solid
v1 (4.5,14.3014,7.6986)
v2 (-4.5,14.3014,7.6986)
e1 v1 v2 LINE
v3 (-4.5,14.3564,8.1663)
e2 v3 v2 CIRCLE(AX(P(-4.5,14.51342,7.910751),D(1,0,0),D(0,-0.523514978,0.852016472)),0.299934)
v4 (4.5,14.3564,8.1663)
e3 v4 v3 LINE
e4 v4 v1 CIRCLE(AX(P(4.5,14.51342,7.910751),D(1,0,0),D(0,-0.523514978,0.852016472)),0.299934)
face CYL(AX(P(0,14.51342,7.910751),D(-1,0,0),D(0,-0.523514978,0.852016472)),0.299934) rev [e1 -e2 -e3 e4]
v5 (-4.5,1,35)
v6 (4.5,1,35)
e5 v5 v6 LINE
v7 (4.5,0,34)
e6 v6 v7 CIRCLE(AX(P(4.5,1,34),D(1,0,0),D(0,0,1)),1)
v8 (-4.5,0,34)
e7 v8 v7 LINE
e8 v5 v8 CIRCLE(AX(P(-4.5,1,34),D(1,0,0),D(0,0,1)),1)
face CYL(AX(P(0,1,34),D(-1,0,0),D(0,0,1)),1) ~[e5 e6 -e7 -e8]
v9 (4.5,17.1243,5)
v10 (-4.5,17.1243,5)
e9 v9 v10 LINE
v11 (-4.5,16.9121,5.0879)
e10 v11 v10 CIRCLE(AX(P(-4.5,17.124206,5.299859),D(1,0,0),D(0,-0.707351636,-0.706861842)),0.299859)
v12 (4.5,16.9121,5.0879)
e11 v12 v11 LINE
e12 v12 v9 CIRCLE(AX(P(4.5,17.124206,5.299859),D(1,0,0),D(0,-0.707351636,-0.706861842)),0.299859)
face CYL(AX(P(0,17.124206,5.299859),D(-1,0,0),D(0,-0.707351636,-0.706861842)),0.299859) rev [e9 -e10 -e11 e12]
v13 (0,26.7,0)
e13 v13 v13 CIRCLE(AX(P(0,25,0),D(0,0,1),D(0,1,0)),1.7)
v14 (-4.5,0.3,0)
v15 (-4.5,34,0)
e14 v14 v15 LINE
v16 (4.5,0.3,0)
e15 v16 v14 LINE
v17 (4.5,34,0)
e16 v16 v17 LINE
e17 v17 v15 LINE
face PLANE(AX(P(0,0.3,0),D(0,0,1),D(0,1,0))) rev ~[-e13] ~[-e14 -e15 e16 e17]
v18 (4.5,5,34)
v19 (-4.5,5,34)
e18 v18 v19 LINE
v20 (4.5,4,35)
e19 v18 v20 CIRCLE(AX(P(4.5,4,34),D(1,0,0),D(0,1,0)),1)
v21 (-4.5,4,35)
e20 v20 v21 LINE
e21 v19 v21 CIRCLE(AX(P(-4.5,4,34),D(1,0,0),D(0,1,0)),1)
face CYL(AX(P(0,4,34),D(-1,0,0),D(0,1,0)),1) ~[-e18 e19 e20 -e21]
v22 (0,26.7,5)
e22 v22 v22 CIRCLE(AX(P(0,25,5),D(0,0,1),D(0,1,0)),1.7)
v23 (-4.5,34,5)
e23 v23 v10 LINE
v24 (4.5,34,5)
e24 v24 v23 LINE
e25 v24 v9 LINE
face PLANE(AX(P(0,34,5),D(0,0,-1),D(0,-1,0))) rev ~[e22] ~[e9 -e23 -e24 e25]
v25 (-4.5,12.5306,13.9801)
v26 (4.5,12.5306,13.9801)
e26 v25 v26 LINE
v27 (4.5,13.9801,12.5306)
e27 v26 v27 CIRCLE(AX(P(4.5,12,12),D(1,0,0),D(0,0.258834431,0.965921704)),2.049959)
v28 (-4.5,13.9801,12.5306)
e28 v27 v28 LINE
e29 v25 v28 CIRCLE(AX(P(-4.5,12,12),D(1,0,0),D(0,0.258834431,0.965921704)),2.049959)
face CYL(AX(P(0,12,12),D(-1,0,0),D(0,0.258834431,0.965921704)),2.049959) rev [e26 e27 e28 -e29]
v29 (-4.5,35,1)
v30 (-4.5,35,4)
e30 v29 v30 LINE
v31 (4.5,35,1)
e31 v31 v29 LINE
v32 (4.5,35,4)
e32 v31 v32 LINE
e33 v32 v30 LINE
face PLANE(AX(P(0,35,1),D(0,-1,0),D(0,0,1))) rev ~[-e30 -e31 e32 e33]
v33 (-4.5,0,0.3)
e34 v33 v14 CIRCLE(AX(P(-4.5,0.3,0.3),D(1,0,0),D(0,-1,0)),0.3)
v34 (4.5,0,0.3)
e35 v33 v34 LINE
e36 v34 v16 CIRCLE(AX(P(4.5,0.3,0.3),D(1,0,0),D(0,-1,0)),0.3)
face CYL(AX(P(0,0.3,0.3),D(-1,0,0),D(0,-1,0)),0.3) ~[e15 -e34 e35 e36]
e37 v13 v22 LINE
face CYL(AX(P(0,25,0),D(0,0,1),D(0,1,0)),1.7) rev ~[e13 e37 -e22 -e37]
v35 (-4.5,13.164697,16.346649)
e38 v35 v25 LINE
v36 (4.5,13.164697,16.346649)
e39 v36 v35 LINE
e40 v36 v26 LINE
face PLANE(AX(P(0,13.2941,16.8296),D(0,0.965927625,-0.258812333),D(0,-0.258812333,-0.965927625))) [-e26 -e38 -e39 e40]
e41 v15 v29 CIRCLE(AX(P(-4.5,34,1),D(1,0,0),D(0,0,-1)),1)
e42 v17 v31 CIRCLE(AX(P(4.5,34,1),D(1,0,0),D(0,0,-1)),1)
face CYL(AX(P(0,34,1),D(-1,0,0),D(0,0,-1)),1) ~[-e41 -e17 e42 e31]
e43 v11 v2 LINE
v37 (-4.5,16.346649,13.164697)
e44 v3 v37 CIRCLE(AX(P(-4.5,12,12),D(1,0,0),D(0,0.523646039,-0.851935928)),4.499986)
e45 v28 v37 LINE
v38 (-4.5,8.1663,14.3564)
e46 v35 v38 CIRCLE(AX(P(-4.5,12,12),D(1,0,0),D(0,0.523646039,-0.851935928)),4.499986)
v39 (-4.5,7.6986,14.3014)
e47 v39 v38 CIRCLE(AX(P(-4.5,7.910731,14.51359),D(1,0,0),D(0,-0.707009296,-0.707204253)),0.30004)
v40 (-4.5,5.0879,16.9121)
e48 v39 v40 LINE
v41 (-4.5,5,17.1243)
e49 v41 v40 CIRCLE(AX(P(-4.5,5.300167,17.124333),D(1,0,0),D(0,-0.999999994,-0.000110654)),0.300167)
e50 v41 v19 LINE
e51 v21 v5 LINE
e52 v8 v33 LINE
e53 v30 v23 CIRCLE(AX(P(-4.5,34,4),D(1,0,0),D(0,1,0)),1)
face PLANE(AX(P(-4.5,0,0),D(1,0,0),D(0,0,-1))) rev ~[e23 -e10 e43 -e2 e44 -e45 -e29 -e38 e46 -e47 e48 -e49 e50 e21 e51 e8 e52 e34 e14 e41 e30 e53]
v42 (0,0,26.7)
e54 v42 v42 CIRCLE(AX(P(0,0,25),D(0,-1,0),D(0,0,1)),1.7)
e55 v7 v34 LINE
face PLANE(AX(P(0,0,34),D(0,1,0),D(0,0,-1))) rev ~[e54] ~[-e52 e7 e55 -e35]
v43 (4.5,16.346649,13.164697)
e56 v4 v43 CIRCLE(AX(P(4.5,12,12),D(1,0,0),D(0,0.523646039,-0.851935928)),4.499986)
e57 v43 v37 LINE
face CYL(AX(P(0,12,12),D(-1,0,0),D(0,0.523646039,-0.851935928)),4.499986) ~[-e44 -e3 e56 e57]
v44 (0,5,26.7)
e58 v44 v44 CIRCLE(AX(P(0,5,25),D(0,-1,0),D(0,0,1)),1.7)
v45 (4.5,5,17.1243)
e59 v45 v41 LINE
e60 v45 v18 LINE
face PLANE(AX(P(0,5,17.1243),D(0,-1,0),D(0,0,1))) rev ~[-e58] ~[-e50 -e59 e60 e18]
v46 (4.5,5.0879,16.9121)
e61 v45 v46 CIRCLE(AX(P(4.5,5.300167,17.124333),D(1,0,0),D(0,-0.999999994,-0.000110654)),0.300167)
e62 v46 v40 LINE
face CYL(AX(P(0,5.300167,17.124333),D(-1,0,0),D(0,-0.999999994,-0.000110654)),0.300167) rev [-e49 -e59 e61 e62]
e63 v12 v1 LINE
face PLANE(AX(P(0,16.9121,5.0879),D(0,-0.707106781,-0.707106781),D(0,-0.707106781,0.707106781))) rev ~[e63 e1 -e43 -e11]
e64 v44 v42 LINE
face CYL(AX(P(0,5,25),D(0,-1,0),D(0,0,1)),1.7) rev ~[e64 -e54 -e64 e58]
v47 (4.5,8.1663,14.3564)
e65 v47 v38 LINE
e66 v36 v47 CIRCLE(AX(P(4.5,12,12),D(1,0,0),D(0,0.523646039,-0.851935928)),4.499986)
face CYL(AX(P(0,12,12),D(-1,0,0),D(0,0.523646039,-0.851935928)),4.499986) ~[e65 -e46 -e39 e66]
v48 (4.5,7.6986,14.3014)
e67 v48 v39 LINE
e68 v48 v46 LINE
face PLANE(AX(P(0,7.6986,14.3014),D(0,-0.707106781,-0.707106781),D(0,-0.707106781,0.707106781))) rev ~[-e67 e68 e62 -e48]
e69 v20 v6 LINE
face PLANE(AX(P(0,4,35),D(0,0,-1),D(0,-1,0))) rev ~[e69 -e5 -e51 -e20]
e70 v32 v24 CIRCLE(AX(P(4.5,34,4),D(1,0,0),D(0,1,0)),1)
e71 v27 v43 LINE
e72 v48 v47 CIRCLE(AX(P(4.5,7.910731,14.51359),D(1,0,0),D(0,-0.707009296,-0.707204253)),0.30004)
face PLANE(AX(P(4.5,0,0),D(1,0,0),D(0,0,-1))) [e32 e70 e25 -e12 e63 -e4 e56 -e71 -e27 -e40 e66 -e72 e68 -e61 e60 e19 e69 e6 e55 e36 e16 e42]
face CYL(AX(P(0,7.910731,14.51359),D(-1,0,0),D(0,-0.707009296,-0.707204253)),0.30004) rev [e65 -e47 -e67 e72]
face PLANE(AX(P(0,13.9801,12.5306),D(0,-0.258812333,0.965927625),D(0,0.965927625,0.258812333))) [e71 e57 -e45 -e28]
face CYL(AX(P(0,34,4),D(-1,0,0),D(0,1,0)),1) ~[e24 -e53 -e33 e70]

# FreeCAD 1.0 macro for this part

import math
import FreeCAD as App
import Part
import Sketcher
Q = App.Units.Quantity

doc = App.newDocument("Part")
body = doc.addObject("PartDesign::Body", "Body")

# Sketch on YZ plane
sketch1 = body.newObject("Sketcher::SketchObject", "Sketch")
sketch1.AttachmentSupport = (doc.getObject("YZ_Plane"), [""])
sketch1.MapMode = "FlatFace"
sketch1.addGeometry(Part.LineSegment(App.Vector(4, 35, 0), App.Vector(1, 35, 0)), False)
sketch1.addGeometry(Part.ArcOfCircle(Part.Circle(App.Vector(1, 34, 0), App.Vector(0, 0, 1), 1), math.radians(90), math.radians(180)), False)
sketch1.addGeometry(Part.LineSegment(App.Vector(0, 34, 0), App.Vector(0, 0.3, 0)), False)
sketch1.addGeometry(Part.ArcOfCircle(Part.Circle(App.Vector(0.3, 0.3, 0), App.Vector(0, 0, 1), 0.3), math.radians(180), math.radians(270)), False)
sketch1.addGeometry(Part.LineSegment(App.Vector(0.3, 0, 0), App.Vector(34, 0, 0)), False)
sketch1.addGeometry(Part.ArcOfCircle(Part.Circle(App.Vector(34, 1, 0), App.Vector(0, 0, 1), 1), math.radians(-90), math.radians(0)), False)
sketch1.addGeometry(Part.LineSegment(App.Vector(35, 1, 0), App.Vector(35, 4, 0)), False)
sketch1.addGeometry(Part.ArcOfCircle(Part.Circle(App.Vector(34, 4, 0), App.Vector(0, 0, 1), 1), math.radians(0), math.radians(90)), False)
sketch1.addGeometry(Part.LineSegment(App.Vector(34, 5, 0), App.Vector(17.1243, 5, 0)), False)
sketch1.addGeometry(Part.ArcOfCircle(Part.Circle(App.Vector(17.1243, 5.3, 0), App.Vector(0, 0, 1), 0.300025), math.radians(-135.013504), math.radians(-90)), False)
sketch1.addGeometry(Part.LineSegment(App.Vector(16.9121, 5.0879, 0), App.Vector(14.3014, 7.6986, 0)), False)
sketch1.addGeometry(Part.ArcOfCircle(Part.Circle(App.Vector(14.5135, 7.9107, 0), App.Vector(0, 0, 1), 0.30002), math.radians(121.576225), math.radians(225)), False)
sketch1.addGeometry(Part.ArcOfCircle(Part.Circle(App.Vector(12, 12, 0), App.Vector(0, 0, 1), 4.499986), math.radians(-58.42286), math.radians(148.42286)), False)
sketch1.addGeometry(Part.ArcOfCircle(Part.Circle(App.Vector(7.9107, 14.5135, 0), App.Vector(0, 0, 1), 0.299955), math.radians(-135), math.radians(-31.576225)), False)
sketch1.addGeometry(Part.LineSegment(App.Vector(7.6986, 14.3014, 0), App.Vector(5.0879, 16.9121, 0)), False)
sketch1.addGeometry(Part.ArcOfCircle(Part.Circle(App.Vector(5.3, 17.1243, 0), App.Vector(0, 0, 1), 0.3), math.radians(180), math.radians(225.013504)), False)
sketch1.addGeometry(Part.LineSegment(App.Vector(5, 17.1243, 0), App.Vector(5, 34, 0)), False)
sketch1.addGeometry(Part.ArcOfCircle(Part.Circle(App.Vector(4, 34, 0), App.Vector(0, 0, 1), 1), math.radians(0), math.radians(90)), False)
sketch1.addConstraint(Sketcher.Constraint("Tangent", 0, 2, 1, 1))
sketch1.addConstraint(Sketcher.Constraint("Tangent", 1, 2, 2, 1))
sketch1.addConstraint(Sketcher.Constraint("Tangent", 2, 2, 3, 1))
sketch1.addConstraint(Sketcher.Constraint("Tangent", 3, 2, 4, 1))
sketch1.addConstraint(Sketcher.Constraint("Tangent", 4, 2, 5, 1))
sketch1.addConstraint(Sketcher.Constraint("Tangent", 5, 2, 6, 1))
sketch1.addConstraint(Sketcher.Constraint("Tangent", 6, 2, 7, 1))
sketch1.addConstraint(Sketcher.Constraint("Tangent", 7, 2, 8, 1))
sketch1.addConstraint(Sketcher.Constraint("Tangent", 8, 2, 9, 2))
sketch1.addConstraint(Sketcher.Constraint("Tangent", 9, 1, 10, 1))
sketch1.addConstraint(Sketcher.Constraint("Tangent", 10, 2, 11, 2))
sketch1.addConstraint(Sketcher.Constraint("Tangent", 11, 1, 12, 1))
sketch1.addConstraint(Sketcher.Constraint("Tangent", 12, 2, 13, 2))
sketch1.addConstraint(Sketcher.Constraint("Tangent", 13, 1, 14, 1))
sketch1.addConstraint(Sketcher.Constraint("Tangent", 14, 2, 15, 2))
sketch1.addConstraint(Sketcher.Constraint("Tangent", 15, 1, 16, 1))
sketch1.addConstraint(Sketcher.Constraint("Tangent", 16, 2, 17, 1))
sketch1.addConstraint(Sketcher.Constraint("Tangent", 17, 2, 0, 1))
sketch1.addConstraint(Sketcher.Constraint("Horizontal", 0))
sketch1.addConstraint(Sketcher.Constraint("Vertical", 2))
sketch1.addConstraint(Sketcher.Constraint("Horizontal", 4))
sketch1.addConstraint(Sketcher.Constraint("Vertical", 6))
sketch1.addConstraint(Sketcher.Constraint("Horizontal", 8))
sketch1.addConstraint(Sketcher.Constraint("Vertical", 16))
sketch1.addConstraint(Sketcher.Constraint("Equal", 1, 5))
sketch1.addConstraint(Sketcher.Constraint("Equal", 5, 7))
sketch1.addConstraint(Sketcher.Constraint("Equal", 3, 9))
sketch1.addConstraint(Sketcher.Constraint("Equal", 9, 11))
sketch1.addConstraint(Sketcher.Constraint("Equal", 11, 13))
sketch1.addConstraint(Sketcher.Constraint("Equal", 13, 15))
sketch1.addConstraint(Sketcher.Constraint("Equal", 7, 17))
sketch1.addConstraint(Sketcher.Constraint("PointOnObject", 1, 2, -2))
sketch1.addConstraint(Sketcher.Constraint("PointOnObject", 3, 2, -1))
sketch1.addConstraint(Sketcher.Constraint("Parallel", 10, 14))
sketch1.addConstraint(Sketcher.Constraint("Equal", 4, 2))
sketch1.addConstraint(Sketcher.Constraint("Equal", 0, 6))
sketch1.addConstraint(Sketcher.Constraint("Equal", 8, 16))
sketch1.addConstraint(Sketcher.Constraint("Equal", 10, 14))
sketch1.addConstraint(Sketcher.Constraint("Radius", 1, 1.0))
sketch1.addConstraint(Sketcher.Constraint("Radius", 3, 0.3))
sketch1.addConstraint(Sketcher.Constraint("Radius", 12, 4.5))
sketch1.addConstraint(Sketcher.Constraint("DistanceX", 0, 2, 0, 1, 3.0))
sketch1.addConstraint(Sketcher.Constraint("Angle", 10, Q("135 deg")))
sketch1.addConstraint(Sketcher.Constraint("DistanceX", 4, 1, 4, 2, 33.7))
sketch1.addConstraint(Sketcher.Constraint("DistanceX", -1, 1, 12, 3, 12.0))
sketch1.addConstraint(Sketcher.Constraint("DistanceX", 12, 2, 11, 1, 6.19))
pad1 = body.newObject("PartDesign::Pad", "Pad")
pad1.Profile = sketch1
pad1.Length = 9
pad1.Midplane = True

# Sketch on YZ plane
sketch2 = body.newObject("Sketcher::SketchObject", "Sketch001")
sketch2.AttachmentSupport = (doc.getObject("YZ_Plane"), [""])
sketch2.MapMode = "FlatFace"
sketch2.addGeometry(Part.ArcOfCircle(Part.Circle(App.Vector(12, 12, 0), App.Vector(0, 0, 1), 4.999973), math.radians(15.000139), math.radians(74.999861)), False)
sketch2.addGeometry(Part.LineSegment(App.Vector(13.2941, 16.8296, 0), App.Vector(12.5306, 13.9801, 0)), False)
sketch2.addGeometry(Part.ArcOfCircle(Part.Circle(App.Vector(12, 12, 0), App.Vector(0, 0, 1), 2.049959), math.radians(74.999087), math.radians(375.000913)), False)
sketch2.addGeometry(Part.LineSegment(App.Vector(13.9801, 12.5306, 0), App.Vector(16.8296, 13.2941, 0)), False)
sketch2.addConstraint(Sketcher.Constraint("Coincident", 0, 2, 1, 1))
sketch2.addConstraint(Sketcher.Constraint("Coincident", 1, 2, 2, 1))
sketch2.addConstraint(Sketcher.Constraint("Coincident", 2, 2, 3, 1))
sketch2.addConstraint(Sketcher.Constraint("Coincident", 3, 2, 0, 1))
sketch2.addConstraint(Sketcher.Constraint("Coincident", 2, 3, 0, 3))
sketch2.addConstraint(Sketcher.Constraint("Radius", 0, 5.0))
sketch2.addConstraint(Sketcher.Constraint("Angle", 1, Q("-104.9996 deg")))
sketch2.addConstraint(Sketcher.Constraint("Angle", 3, Q("14.9996 deg")))
sketch2.addConstraint(Sketcher.Constraint("Radius", 2, 2.05))
sketch2.addConstraint(Sketcher.Constraint("DistanceX", -1, 1, 0, 3, 12.0))
sketch2.addConstraint(Sketcher.Constraint("DistanceY", -1, 1, 0, 3, 12.0))
sketch2.addConstraint(Sketcher.Constraint("DistanceY", -1, 1, 1, 2, 13.98))
sketch2.addConstraint(Sketcher.Constraint("DistanceX", -1, 1, 2, 2, 13.98))
pocket1 = body.newObject("PartDesign::Pocket", "Pocket")
pocket1.Profile = sketch2
pocket1.Length = 9
pocket1.Midplane = True

# Sketch on XY plane
sketch3 = body.newObject("Sketcher::SketchObject", "Sketch002")
sketch3.AttachmentSupport = (doc.getObject("XY_Plane"), [""])
sketch3.MapMode = "FlatFace"
sketch3.addGeometry(Part.Circle(App.Vector(0, 25, 0), App.Vector(0, 0, 1), 1.7), False)
sketch3.addConstraint(Sketcher.Constraint("PointOnObject", 0, 3, -2))
sketch3.addConstraint(Sketcher.Constraint("Diameter", 0, 3.4))
sketch3.addConstraint(Sketcher.Constraint("DistanceY", -1, 1, 0, 3, 25.0))
doc.recompute()
hole = body.newObject("PartDesign::Hole", "Hole")
hole.Profile = sketch3
hole.ThreadType = "None"
hole.Diameter = 3.4
hole.DepthType = "Dimension"
hole.Depth = 5
hole.DrillPoint = "Flat"
hole.Reversed = True

# Sketch on XZ plane
sketch4 = body.newObject("Sketcher::SketchObject", "Sketch003")
sketch4.AttachmentSupport = (doc.getObject("XZ_Plane"), [""])
sketch4.MapMode = "FlatFace"
sketch4.AttachmentOffset = App.Placement(App.Vector(0, 0, -5), App.Rotation())
sketch4.addGeometry(Part.Circle(App.Vector(0, 25, 0), App.Vector(0, 0, 1), 1.7), False)
sketch4.addConstraint(Sketcher.Constraint("PointOnObject", 0, 3, -2))
sketch4.addConstraint(Sketcher.Constraint("Diameter", 0, 3.4))
sketch4.addConstraint(Sketcher.Constraint("DistanceY", -1, 1, 0, 3, 25.0))
doc.recompute()
hole2 = body.newObject("PartDesign::Hole", "Hole001")
hole2.Profile = sketch4
hole2.ThreadType = "None"
hole2.Diameter = 3.4
hole2.DepthType = "Dimension"
hole2.Depth = 5
hole2.DrillPoint = "Flat"
hole2.Reversed = True

doc.recompute()
